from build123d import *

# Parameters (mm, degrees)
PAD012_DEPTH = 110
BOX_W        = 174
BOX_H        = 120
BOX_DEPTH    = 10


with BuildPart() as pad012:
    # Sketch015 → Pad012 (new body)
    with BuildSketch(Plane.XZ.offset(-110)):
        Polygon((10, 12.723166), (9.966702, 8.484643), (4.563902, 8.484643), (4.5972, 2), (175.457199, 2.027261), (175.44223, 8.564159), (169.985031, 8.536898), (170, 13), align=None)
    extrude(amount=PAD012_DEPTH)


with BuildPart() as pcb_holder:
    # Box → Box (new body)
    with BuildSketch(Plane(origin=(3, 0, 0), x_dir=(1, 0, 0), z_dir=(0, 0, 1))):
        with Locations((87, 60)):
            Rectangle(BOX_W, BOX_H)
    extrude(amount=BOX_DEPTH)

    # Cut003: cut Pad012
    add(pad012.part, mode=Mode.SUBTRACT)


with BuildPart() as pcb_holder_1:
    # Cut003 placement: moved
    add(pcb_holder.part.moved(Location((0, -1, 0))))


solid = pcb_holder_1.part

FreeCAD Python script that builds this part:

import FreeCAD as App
import Part
import Sketcher
from FreeCAD import Vector
Q = App.Units.Quantity

doc = App.newDocument("Part")
body = doc.addObject("PartDesign::Body", "Body")

# Sketch on XZ plane
sketch1 = doc.addObject("Sketcher::SketchObject", "Sketch")
body.addObject(sketch1)
sketch1.AttachmentSupport = (doc.XZ_Plane, [""])
sketch1.MapMode = "FlatFace"
sketch1.AttachmentOffset = App.Placement(Vector(0, 0, -110), App.Rotation())
sketch1.addGeometry([
    Part.LineSegment(Vector(10, 12.7, 0), Vector(10, 8.5, 0)),  # 0
    Part.LineSegment(Vector(10, 8.5, 0), Vector(4.6, 8.5, 0)),  # 1
    Part.LineSegment(Vector(4.6, 8.5, 0), Vector(4.6, 2, 0)),  # 2
    Part.LineSegment(Vector(4.6, 2, 0), Vector(175.5, 2, 0)),  # 3
    Part.LineSegment(Vector(175.5, 2, 0), Vector(175.4, 8.6, 0)),  # 4
    Part.LineSegment(Vector(175.4, 8.6, 0), Vector(170, 8.5, 0)),  # 5
    Part.LineSegment(Vector(170, 8.5, 0), Vector(170, 13, 0)),  # 6
    Part.LineSegment(Vector(170, 13, 0), Vector(10, 12.7, 0)),  # 7
], False)
sketch1.addConstraint([
    Sketcher.Constraint("Coincident", 0, 2, 1, 1),
    Sketcher.Constraint("Coincident", 1, 2, 2, 1),
    Sketcher.Constraint("Coincident", 2, 2, 3, 1),
    Sketcher.Constraint("Coincident", 3, 2, 4, 1),
    Sketcher.Constraint("Coincident", 4, 2, 5, 1),
    Sketcher.Constraint("Coincident", 5, 2, 6, 1),
    Sketcher.Constraint("Coincident", 6, 2, 7, 1),
    Sketcher.Constraint("Coincident", 7, 2, 0, 1),
    Sketcher.Constraint("Horizontal", 1),
    Sketcher.Constraint("DistanceY", -1, 1, 2, 2, Q("2 mm")),
    Sketcher.Constraint("DistanceX", -1, 1, 6, 2, Q("170 mm")),
    Sketcher.Constraint("DistanceY", -1, 1, 6, 2, Q("13 mm")),
    Sketcher.Constraint("DistanceX", -1, 1, 7, 2, Q("10 mm")),
    Sketcher.Constraint("Distance", 3, Q("170.860001 mm")),
    Sketcher.Constraint("DistanceX", 1, 2, 1, 1, Q("5.4028 mm")),
    Sketcher.Constraint("DistanceX", -1, 1, 1, 2, Q("4.563902 mm")),
    Sketcher.Constraint("DistanceX", -1, 1, 2, 2, Q("4.5972 mm")),
    Sketcher.Constraint("DistanceY", -1, 1, 5, 2, Q("8.536898 mm")),
    Sketcher.Constraint("DistanceX", 5, 2, 4, 2, Q("5.457199 mm")),
    Sketcher.Constraint("Distance", 2, Q("6.484728 mm")),
    Sketcher.Constraint("DistanceY", -1, 1, 3, 2, Q("2.027261 mm")),
    Sketcher.Constraint("DistanceX", -1, 1, 4, 2, Q("175.44223 mm")),
    Sketcher.Constraint("DistanceY", -1, 1, 4, 2, Q("8.564159 mm")),
    Sketcher.Constraint("Distance", 0, Q("4.238654 mm")),
])
pad1 = doc.addObject("PartDesign::Pad", "Pad")
body.addObject(pad1)
pad1.Profile = sketch1
pad1.Length = 110
body2 = doc.addObject("PartDesign::Body", "Body001")

# Sketch on XY plane
sketch2 = doc.addObject("Sketcher::SketchObject", "Sketch001")
body2.addObject(sketch2)
sketch2.AttachmentSupport = (doc.getObject("XY_Plane001"), [""])
sketch2.MapMode = "FlatFace"
sketch2.addGeometry([
    Part.LineSegment(Vector(3, 120, 0), Vector(3, 0, 0)),
    Part.LineSegment(Vector(3, 0, 0), Vector(177, 0, 0)),
    Part.LineSegment(Vector(177, 0, 0), Vector(177, 120, 0)),
    Part.LineSegment(Vector(177, 120, 0), Vector(3, 120, 0)),
], False)
sketch2.addConstraint([
    Sketcher.Constraint("Coincident", 0, 2, 1, 1),
    Sketcher.Constraint("Coincident", 1, 2, 2, 1),
    Sketcher.Constraint("Coincident", 2, 2, 3, 1),
    Sketcher.Constraint("Coincident", 3, 2, 0, 1),
    Sketcher.Constraint("Vertical", 0),
    Sketcher.Constraint("Horizontal", 1),
    Sketcher.Constraint("Vertical", 2),
    Sketcher.Constraint("Horizontal", 3),
    Sketcher.Constraint("PointOnObject", 0, 2, -1),
    Sketcher.Constraint("DistanceX", 1, 1, 1, 2, Q("174 mm")),
    Sketcher.Constraint("DistanceY", 0, 2, 0, 1, Q("120 mm")),
    Sketcher.Constraint("DistanceX", -1, 1, 0, 2, Q("3 mm")),
])
pad2 = doc.addObject("PartDesign::Pad", "Pad001")
body2.addObject(pad2)
pad2.Profile = sketch2
pad2.Length = 10
doc.recompute()

boolean = doc.addObject("PartDesign::Boolean", "Boolean")
body2.addObject(boolean)
boolean.Type = "Cut"
boolean.addObjects([body])
body3 = doc.addObject("PartDesign::Body", "Body002")
doc.recompute()

body2.Placement = App.Placement(Vector(0, -1, 0), App.Rotation(Vector(0, 0, 1), 0))
boolean2 = doc.addObject("PartDesign::Boolean", "Boolean001")
body3.addObject(boolean2)
boolean2.Type = "Fuse"
boolean2.addObjects([body2])

doc.recompute()
